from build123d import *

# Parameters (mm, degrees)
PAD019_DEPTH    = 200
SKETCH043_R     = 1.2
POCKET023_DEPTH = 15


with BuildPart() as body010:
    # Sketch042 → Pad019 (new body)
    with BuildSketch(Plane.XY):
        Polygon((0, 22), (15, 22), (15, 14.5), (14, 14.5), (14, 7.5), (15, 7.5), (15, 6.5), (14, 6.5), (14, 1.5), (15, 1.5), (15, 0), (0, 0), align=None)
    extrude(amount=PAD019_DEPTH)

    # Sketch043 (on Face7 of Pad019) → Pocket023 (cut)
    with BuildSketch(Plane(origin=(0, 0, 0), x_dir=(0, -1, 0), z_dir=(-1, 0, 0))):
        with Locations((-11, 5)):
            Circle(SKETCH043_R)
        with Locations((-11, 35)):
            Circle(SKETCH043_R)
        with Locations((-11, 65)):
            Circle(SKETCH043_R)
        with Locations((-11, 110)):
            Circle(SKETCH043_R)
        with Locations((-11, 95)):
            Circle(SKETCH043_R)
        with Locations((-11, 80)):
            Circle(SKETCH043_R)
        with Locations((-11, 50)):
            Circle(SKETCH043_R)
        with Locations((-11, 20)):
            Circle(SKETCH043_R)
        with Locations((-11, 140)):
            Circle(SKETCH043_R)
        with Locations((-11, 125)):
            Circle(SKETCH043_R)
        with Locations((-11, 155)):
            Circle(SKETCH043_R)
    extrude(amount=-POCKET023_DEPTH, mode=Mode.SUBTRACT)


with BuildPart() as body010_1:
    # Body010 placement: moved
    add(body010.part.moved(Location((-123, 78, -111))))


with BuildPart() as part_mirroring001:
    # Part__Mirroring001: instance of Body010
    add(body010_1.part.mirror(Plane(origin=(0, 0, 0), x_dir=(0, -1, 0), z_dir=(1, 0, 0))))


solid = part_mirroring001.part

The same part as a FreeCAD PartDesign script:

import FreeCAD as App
import Part
import Sketcher

V = App.Vector
Q = App.Units.Quantity

doc = App.newDocument("Part")
body = doc.addObject("PartDesign::Body", "Body")

# Sketch on XY plane
sketch1 = body.newObject("Sketcher::SketchObject", "Sketch")
sketch1.AttachmentSupport = (doc.getObject("XY_Plane"), [""])
sketch1.MapMode = "FlatFace"
sketch1.addGeometry([
    Part.LineSegment(V(15, 22, 0), V(0, 22, 0)),  # 0
    Part.LineSegment(V(0, 22, 0), V(0, 0, 0)),  # 1
    Part.LineSegment(V(0, 0, 0), V(15, 0, 0)),  # 2
    Part.LineSegment(V(15, 0, 0), V(15, 1.5, 0)),  # 3
    Part.LineSegment(V(15, 1.5, 0), V(14, 1.5, 0)),  # 4
    Part.LineSegment(V(14, 1.5, 0), V(14, 6.5, 0)),  # 5
    Part.LineSegment(V(14, 6.5, 0), V(15, 6.5, 0)),  # 6
    Part.LineSegment(V(15, 6.5, 0), V(15, 7.5, 0)),  # 7
    Part.LineSegment(V(15, 7.5, 0), V(14, 7.5, 0)),  # 8
    Part.LineSegment(V(14, 7.5, 0), V(14, 14.5, 0)),  # 9
    Part.LineSegment(V(14, 14.5, 0), V(15, 14.5, 0)),  # 10
    Part.LineSegment(V(15, 14.5, 0), V(15, 22, 0)),  # 11
], False)
sketch1.addConstraint([
    Sketcher.Constraint("Coincident", 0, 2, 1, 1),
    Sketcher.Constraint("Coincident", 1, 2, 2, 1),
    Sketcher.Constraint("Coincident", 2, 2, 3, 1),
    Sketcher.Constraint("Coincident", 3, 2, 4, 1),
    Sketcher.Constraint("Coincident", 4, 2, 5, 1),
    Sketcher.Constraint("Coincident", 5, 2, 6, 1),
    Sketcher.Constraint("Coincident", 6, 2, 7, 1),
    Sketcher.Constraint("Coincident", 7, 2, 8, 1),
    Sketcher.Constraint("Coincident", 8, 2, 9, 1),
    Sketcher.Constraint("Coincident", 9, 2, 10, 1),
    Sketcher.Constraint("Coincident", 10, 2, 11, 1),
    Sketcher.Constraint("Coincident", 11, 2, 0, 1),
    Sketcher.Constraint("Horizontal", 0),
    Sketcher.Constraint("Vertical", 1),
    Sketcher.Constraint("Horizontal", 2),
    Sketcher.Constraint("Vertical", 3),
    Sketcher.Constraint("Horizontal", 4),
    Sketcher.Constraint("Vertical", 5),
    Sketcher.Constraint("Horizontal", 6),
    Sketcher.Constraint("Vertical", 7),
    Sketcher.Constraint("Horizontal", 8),
    Sketcher.Constraint("Vertical", 9),
    Sketcher.Constraint("Horizontal", 10),
    Sketcher.Constraint("Vertical", 11),
    Sketcher.Constraint("Coincident", 1, 2, -1, 1),
    Sketcher.Constraint("Vertical", 3, 2, 6, 2),
    Sketcher.Constraint("Vertical", 5, 2, 8, 2),
    Sketcher.Constraint("Vertical", 7, 2, 10, 2),
    Sketcher.Constraint("Equal", 10, 7),
    Sketcher.Constraint("DistanceX", 0, 2, 0, 1, Q("15 mm")),
    Sketcher.Constraint("DistanceX", 4, 2, 4, 1, Q("1 mm")),
    Sketcher.Constraint("DistanceY", 1, 2, 1, 1, Q("22 mm")),
    Sketcher.Constraint("DistanceY", 5, 1, 5, 2, Q("5 mm")),
    Sketcher.Constraint("DistanceY", 9, 1, 9, 2, Q("7 mm")),
    Sketcher.Constraint("DistanceY", 3, 1, 3, 2, Q("1.5 mm")),
])
pad1 = body.newObject("PartDesign::Pad", "Pad")
pad1.Profile = sketch1
pad1.Length = 200

# Sketch on YZ plane
sketch2 = body.newObject("Sketcher::SketchObject", "Sketch001")
sketch2.AttachmentSupport = (doc.getObject("YZ_Plane"), [""])
sketch2.MapMode = "FlatFace"
sketch2.addGeometry([
    Part.Circle(V(11, 5, 0), V(0, 0, 1), 1.2),  # 0
    Part.Circle(V(11, 35, 0), V(0, 0, 1), 1.2),  # 1
    Part.Circle(V(11, 65, 0), V(0, 0, 1), 1.2),  # 2
    Part.Circle(V(11, 110, 0), V(0, 0, 1), 1.2),  # 3
    Part.Circle(V(11, 95, 0), V(0, 0, 1), 1.2),  # 4
    Part.Circle(V(11, 80, 0), V(0, 0, 1), 1.2),  # 5
    Part.Circle(V(11, 50, 0), V(0, 0, 1), 1.2),  # 6
    Part.Circle(V(11, 20, 0), V(0, 0, 1), 1.2),  # 7
    Part.Circle(V(11, 140, 0), V(0, 0, 1), 1.2),  # 8
    Part.Circle(V(11, 125, 0), V(0, 0, 1), 1.2),  # 9
    Part.Circle(V(11, 155, 0), V(0, 0, 1), 1.2),  # 10
], False)
sketch2.addConstraint([
    Sketcher.Constraint("Equal", 0, 1),
    Sketcher.Constraint("Equal", 1, 2),
    Sketcher.Constraint("Equal", 2, 3),
    Sketcher.Constraint("Equal", 3, 4),
    Sketcher.Constraint("Equal", 4, 5),
    Sketcher.Constraint("Equal", 5, 6),
    Sketcher.Constraint("Equal", 6, 7),
    Sketcher.Constraint("Equal", 7, 8),
    Sketcher.Constraint("Equal", 8, 9),
    Sketcher.Constraint("Equal", 9, 10),
    Sketcher.Constraint("Vertical", 0, 3, 1, 3),
    Sketcher.Constraint("Vertical", 1, 3, 2, 3),
    Sketcher.Constraint("Vertical", 2, 3, 3, 3),
    Sketcher.Constraint("Vertical", 3, 3, 4, 3),
    Sketcher.Constraint("Vertical", 4, 3, 5, 3),
    Sketcher.Constraint("Vertical", 5, 3, 6, 3),
    Sketcher.Constraint("Vertical", 6, 3, 7, 3),
    Sketcher.Constraint("Vertical", 7, 3, 8, 3),
    Sketcher.Constraint("Vertical", 8, 3, 9, 3),
    Sketcher.Constraint("Vertical", 9, 3, 10, 3),
    Sketcher.Constraint("Diameter", 0, Q("2.4 mm")),
    Sketcher.Constraint("DistanceX", -1, 1, 0, 3, Q("11 mm")),
    Sketcher.Constraint("DistanceY", -1, 1, 0, 3, Q("5 mm")),
    Sketcher.Constraint("DistanceY", -1, 1, 1, 3, Q("35 mm")),
    Sketcher.Constraint("DistanceY", -1, 1, 2, 3, Q("65 mm")),
    Sketcher.Constraint("DistanceY", -1, 1, 3, 3, Q("110 mm")),
    Sketcher.Constraint("DistanceY", -1, 1, 4, 3, Q("95 mm")),
    Sketcher.Constraint("DistanceY", -1, 1, 5, 3, Q("80 mm")),
    Sketcher.Constraint("DistanceY", -1, 1, 6, 3, Q("50 mm")),
    Sketcher.Constraint("DistanceY", -1, 1, 7, 3, Q("20 mm")),
    Sketcher.Constraint("DistanceY", -1, 1, 8, 3, Q("140 mm")),
    Sketcher.Constraint("DistanceY", -1, 1, 9, 3, Q("125 mm")),
    Sketcher.Constraint("DistanceY", -1, 1, 10, 3, Q("155 mm")),
])
pocket1 = body.newObject("PartDesign::Pocket", "Pocket")
pocket1.Profile = sketch2
pocket1.Length = 15
pocket1.Reversed = True
body2 = doc.addObject("PartDesign::Body", "Body001")
doc.recompute()

body.Placement = App.Placement(V(-123, 78, -111), App.Rotation(V(0, 0, 1), 0))
boolean = body2.newObject("PartDesign::Boolean", "Boolean")
boolean.Type = "Fuse"
boolean.addObjects([body])
body3 = doc.addObject("PartDesign::Body", "Body002")
doc.recompute()

mirroring = doc.addObject("Part::Mirroring", "Mirroring")
mirroring.Source = body2
mirroring.Base = V(0, 0, 0)
mirroring.Normal = V(1, 0, 0)
body3.BaseFeature = mirroring
doc.recompute()
body2.Visibility = False
mirroring.Visibility = False

doc.recompute()
